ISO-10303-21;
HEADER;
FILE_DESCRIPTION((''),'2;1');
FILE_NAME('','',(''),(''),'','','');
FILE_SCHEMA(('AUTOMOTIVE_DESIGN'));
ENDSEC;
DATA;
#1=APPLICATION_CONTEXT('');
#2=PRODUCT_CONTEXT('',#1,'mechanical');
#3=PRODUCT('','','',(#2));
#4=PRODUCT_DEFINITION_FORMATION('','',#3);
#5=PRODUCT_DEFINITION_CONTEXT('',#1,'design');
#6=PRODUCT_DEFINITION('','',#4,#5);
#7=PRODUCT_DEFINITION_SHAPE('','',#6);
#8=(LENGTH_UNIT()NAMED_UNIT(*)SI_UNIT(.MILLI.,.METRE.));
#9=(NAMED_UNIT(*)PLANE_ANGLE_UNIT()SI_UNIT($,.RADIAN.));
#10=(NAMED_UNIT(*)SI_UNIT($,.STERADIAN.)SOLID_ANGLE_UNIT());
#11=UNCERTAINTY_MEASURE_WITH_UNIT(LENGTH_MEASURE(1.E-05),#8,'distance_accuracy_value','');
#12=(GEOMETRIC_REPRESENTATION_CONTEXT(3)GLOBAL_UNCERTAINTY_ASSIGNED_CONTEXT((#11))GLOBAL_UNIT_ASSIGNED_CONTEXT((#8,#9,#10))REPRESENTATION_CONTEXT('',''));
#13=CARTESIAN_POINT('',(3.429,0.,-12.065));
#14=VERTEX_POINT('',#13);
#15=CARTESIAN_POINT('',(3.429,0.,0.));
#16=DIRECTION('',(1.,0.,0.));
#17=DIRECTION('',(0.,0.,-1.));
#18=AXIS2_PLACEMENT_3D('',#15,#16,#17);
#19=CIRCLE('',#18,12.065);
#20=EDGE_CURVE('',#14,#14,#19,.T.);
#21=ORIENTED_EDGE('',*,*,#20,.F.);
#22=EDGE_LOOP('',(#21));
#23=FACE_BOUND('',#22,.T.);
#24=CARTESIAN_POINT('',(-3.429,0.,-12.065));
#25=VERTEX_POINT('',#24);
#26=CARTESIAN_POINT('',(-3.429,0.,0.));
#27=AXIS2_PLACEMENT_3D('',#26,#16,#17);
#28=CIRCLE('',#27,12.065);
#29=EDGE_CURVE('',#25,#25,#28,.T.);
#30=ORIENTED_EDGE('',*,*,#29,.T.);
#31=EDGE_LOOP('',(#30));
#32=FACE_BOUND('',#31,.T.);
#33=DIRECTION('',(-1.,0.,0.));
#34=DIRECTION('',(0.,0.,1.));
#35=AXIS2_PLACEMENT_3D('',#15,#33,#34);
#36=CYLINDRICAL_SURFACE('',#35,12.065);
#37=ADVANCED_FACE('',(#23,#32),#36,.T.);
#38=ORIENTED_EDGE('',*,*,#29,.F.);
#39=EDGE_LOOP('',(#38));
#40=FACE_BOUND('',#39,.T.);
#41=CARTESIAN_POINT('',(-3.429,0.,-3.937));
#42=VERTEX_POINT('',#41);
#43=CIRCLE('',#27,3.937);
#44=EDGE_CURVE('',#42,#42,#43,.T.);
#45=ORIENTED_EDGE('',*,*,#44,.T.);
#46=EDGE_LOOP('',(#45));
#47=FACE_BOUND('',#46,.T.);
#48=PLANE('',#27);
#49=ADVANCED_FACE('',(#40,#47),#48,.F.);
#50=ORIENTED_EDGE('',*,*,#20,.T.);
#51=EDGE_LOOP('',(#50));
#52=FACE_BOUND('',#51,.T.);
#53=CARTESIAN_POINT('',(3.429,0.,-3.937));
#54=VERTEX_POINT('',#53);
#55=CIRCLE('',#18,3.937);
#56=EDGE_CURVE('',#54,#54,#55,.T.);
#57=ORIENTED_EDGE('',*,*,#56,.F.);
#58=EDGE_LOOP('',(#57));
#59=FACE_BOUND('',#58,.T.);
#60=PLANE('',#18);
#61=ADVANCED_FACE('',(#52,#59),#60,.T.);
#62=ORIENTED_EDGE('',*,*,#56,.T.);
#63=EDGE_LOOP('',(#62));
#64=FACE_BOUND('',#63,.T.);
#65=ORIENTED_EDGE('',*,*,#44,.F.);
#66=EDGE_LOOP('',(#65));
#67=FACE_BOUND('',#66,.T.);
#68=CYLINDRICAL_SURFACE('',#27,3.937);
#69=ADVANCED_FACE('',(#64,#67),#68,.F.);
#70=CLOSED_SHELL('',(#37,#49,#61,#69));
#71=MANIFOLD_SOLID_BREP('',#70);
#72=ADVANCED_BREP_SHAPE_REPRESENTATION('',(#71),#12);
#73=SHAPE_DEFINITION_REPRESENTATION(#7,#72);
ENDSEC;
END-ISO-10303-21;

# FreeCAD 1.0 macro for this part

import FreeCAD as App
import Part
import Sketcher

V = App.Vector
Q = App.Units.Quantity

doc = App.newDocument("Part")
params = doc.addObject("Spreadsheet::Sheet", "Params")
for row, (alias, value) in enumerate([
    ("sketch1_diameter", "0.95 in"),
    ("pad1_length", "0.27 in"),
    ("sketch2_diameter", "0.31 in"),
], start=1):
    params.set(f"A{row}", alias)
    params.set(f"B{row}", "=" + value)
    params.setAlias(f"B{row}", alias)

body = doc.addObject("PartDesign::Body", "Body")

sketch1 = body.newObject("Sketcher::SketchObject", "Sketch")
sketch1.AttachmentSupport = (doc.getObject("YZ_Plane"), [""])
sketch1.MapMode = "FlatFace"
sketch1.addGeometry(Part.Circle(V(0, 0, 0), V(0, 0, 1), 12), False)
sketch1.addConstraint([
    Sketcher.Constraint("Coincident", 0, 3, -1, 1),
    Sketcher.Constraint("Diameter", 0, Q("0.95 in")),
])
sketch1.setExpression("Constraints[1]", "Params.sketch1_diameter")
pad1 = body.newObject("PartDesign::Pad", "Pad")
pad1.Profile = sketch1
pad1.setExpression("Length", "Params.pad1_length")
pad1.Midplane = True

sketch2 = body.newObject("Sketcher::SketchObject", "Sketch001")
sketch2.AttachmentSupport = (doc.getObject("YZ_Plane"), [""])
sketch2.MapMode = "FlatFace"
sketch2.AttachmentOffset = App.Placement(V(0, 0, 0.135 * 25.4), App.Rotation())
sketch2.addGeometry(Part.Circle(V(0, 0, 0), V(0, 0, 1), 3.9), False)
sketch2.addConstraint([
    Sketcher.Constraint("Coincident", 0, 3, -1, 1),
    Sketcher.Constraint("Diameter", 0, Q("0.31 in")),
])
sketch2.setExpression("Constraints[1]", "Params.sketch2_diameter")
pocket1 = body.newObject("PartDesign::Pocket", "Pocket")
pocket1.Profile = sketch2
pocket1.Type = "ThroughAll"

doc.recompute()
